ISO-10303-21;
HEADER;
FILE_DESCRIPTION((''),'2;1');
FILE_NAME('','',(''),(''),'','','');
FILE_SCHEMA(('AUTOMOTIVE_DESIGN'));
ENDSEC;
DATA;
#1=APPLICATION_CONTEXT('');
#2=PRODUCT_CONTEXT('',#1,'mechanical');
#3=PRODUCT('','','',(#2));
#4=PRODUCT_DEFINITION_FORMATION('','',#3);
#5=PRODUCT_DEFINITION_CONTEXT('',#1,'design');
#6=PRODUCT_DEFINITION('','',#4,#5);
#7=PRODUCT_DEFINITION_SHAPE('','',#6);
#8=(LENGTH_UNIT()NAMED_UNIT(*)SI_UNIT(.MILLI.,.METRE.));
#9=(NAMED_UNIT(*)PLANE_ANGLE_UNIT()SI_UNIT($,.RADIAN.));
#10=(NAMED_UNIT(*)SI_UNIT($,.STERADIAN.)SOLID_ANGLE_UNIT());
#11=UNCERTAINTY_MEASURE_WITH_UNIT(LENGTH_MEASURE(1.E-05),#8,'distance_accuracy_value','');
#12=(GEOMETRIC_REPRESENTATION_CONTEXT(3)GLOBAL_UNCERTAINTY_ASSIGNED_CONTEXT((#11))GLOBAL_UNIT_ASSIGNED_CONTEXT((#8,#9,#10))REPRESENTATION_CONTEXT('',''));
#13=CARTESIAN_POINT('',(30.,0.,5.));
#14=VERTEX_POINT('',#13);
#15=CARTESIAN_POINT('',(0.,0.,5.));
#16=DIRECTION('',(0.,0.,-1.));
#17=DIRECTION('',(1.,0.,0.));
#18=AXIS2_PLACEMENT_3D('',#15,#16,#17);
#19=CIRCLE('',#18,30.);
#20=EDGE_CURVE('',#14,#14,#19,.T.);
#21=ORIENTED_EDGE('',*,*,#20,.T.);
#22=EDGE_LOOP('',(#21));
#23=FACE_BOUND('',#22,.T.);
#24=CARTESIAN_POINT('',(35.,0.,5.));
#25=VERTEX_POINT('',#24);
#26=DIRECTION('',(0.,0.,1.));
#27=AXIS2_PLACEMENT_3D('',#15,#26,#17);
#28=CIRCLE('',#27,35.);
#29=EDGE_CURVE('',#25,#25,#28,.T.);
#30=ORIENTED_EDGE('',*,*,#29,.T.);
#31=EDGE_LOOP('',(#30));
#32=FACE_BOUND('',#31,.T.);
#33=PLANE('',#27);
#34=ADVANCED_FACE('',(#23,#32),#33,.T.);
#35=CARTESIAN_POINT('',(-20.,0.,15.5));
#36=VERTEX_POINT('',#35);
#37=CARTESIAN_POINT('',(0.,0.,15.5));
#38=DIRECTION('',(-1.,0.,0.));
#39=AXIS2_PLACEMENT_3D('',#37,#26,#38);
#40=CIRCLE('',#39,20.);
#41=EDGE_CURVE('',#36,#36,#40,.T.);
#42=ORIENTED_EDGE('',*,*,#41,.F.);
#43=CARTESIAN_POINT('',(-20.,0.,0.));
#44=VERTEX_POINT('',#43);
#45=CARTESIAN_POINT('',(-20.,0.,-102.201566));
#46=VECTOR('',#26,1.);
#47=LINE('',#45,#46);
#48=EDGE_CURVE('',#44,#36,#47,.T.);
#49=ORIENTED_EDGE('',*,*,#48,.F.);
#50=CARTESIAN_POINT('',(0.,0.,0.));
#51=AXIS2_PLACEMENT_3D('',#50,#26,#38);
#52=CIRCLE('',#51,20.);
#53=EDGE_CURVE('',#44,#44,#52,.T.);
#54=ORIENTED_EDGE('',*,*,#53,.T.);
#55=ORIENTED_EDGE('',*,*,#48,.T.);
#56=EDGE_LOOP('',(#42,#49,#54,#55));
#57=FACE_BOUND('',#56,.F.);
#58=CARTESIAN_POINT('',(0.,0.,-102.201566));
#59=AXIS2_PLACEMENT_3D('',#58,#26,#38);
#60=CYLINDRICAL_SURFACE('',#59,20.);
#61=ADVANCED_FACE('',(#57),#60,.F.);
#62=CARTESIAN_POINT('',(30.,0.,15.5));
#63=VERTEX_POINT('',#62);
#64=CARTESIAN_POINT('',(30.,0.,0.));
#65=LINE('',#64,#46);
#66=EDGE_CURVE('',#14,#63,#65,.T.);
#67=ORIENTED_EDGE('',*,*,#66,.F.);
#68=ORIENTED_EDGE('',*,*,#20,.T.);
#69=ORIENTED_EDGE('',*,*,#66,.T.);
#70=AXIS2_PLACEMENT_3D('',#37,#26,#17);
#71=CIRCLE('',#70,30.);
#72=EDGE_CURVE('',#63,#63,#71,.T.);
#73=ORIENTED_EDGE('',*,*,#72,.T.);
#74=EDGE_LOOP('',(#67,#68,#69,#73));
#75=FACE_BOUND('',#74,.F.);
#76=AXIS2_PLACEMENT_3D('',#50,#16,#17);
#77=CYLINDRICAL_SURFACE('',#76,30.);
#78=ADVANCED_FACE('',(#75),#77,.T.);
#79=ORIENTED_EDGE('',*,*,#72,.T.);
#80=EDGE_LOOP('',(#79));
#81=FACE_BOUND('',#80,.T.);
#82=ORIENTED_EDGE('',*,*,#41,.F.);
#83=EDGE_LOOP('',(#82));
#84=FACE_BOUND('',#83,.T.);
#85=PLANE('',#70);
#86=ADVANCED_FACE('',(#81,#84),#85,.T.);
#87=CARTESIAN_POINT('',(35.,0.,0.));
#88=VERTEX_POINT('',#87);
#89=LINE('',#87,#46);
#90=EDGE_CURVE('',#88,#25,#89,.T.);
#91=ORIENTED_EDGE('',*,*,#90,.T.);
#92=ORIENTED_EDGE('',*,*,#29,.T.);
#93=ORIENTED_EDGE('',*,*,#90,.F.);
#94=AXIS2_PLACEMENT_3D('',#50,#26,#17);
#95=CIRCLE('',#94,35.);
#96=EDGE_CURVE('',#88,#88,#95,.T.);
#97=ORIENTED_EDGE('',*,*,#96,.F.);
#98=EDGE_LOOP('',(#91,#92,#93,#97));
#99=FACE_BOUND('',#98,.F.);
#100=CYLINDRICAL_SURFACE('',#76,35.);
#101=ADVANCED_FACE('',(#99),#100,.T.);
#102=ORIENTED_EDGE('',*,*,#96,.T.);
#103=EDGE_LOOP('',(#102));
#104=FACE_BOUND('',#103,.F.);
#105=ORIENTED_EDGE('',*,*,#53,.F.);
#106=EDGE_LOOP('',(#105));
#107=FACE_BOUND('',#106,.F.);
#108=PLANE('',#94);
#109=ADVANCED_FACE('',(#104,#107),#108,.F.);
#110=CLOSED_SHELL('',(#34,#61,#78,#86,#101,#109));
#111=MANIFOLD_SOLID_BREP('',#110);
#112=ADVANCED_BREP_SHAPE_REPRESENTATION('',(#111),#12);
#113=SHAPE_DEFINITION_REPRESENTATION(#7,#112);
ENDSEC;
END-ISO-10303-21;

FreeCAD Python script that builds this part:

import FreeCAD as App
import Part
import Sketcher

V = App.Vector
Q = App.Units.Quantity

doc = App.newDocument("Part")
params = doc.addObject("Spreadsheet::Sheet", "Params")
for row, (alias, value) in enumerate([
    ("sketch1_diameter", "60 mm"),
    ("pad1_length", "15.5 mm"),
    ("sketch2_diameter", "70 mm"),
    ("pad2_length", "5 mm"),
    ("sketch3_diameter", "40 mm"),
    ("pad3_length", "25.4 mm"),
    ("sketch4_diameter", "40 mm"),
    ("hole_diameter", "40 mm"),
], start=1):
    params.set(f"A{row}", alias)
    params.set(f"B{row}", "=" + value)
    params.setAlias(f"B{row}", alias)

body = doc.addObject("PartDesign::Body", "Body")

# Sketch on XY plane
sketch1 = doc.addObject("Sketcher::SketchObject", "Sketch")
body.addObject(sketch1)
sketch1.AttachmentSupport = (doc.XY_Plane, [""])
sketch1.MapMode = "FlatFace"
sketch1.addGeometry(Part.Circle(V(0, 0, 0), V(0, 0, 1), 30), False)
sketch1.addConstraint(Sketcher.Constraint("Coincident", 0, 3, -1, 1))
sketch1.addConstraint(Sketcher.Constraint("Diameter", 0, Q("60 mm")))
sketch1.setExpression("Constraints[1]", "Params.sketch1_diameter")
pad1 = doc.addObject("PartDesign::Pad", "Pad")
body.addObject(pad1)
pad1.Profile = sketch1
pad1.setExpression("Length", "Params.pad1_length")

# Sketch on XY plane
sketch2 = doc.addObject("Sketcher::SketchObject", "Sketch001")
body.addObject(sketch2)
sketch2.AttachmentSupport = (doc.XY_Plane, [""])
sketch2.MapMode = "FlatFace"
sketch2.addGeometry(Part.Circle(V(0, 0, 0), V(0, 0, 1), 35), False)
sketch2.addConstraint(Sketcher.Constraint("Coincident", 0, 3, -1, 1))
sketch2.addConstraint(Sketcher.Constraint("Diameter", 0, Q("70 mm")))
sketch2.setExpression("Constraints[1]", "Params.sketch2_diameter")
pad2 = doc.addObject("PartDesign::Pad", "Pad001")
body.addObject(pad2)
pad2.Profile = sketch2
pad2.setExpression("Length", "Params.pad2_length")

# Sketch on XY plane
sketch3 = doc.addObject("Sketcher::SketchObject", "Sketch002")
body.addObject(sketch3)
sketch3.AttachmentSupport = (doc.XY_Plane, [""])
sketch3.MapMode = "FlatFace"
sketch3.addGeometry(Part.Circle(V(0, 0, 0), V(0, 0, 1), 20), False)
sketch3.addConstraint(Sketcher.Constraint("Coincident", 0, 3, -1, 1))
sketch3.addConstraint(Sketcher.Constraint("Diameter", 0, Q("40 mm")))
sketch3.setExpression("Constraints[1]", "Params.sketch3_diameter")
pad3 = doc.addObject("PartDesign::Pad", "Pad002")
body.addObject(pad3)
pad3.Profile = sketch3
pad3.setExpression("Length", "Params.pad3_length")

# Sketch on XY plane
sketch4 = doc.addObject("Sketcher::SketchObject", "Sketch003")
body.addObject(sketch4)
sketch4.AttachmentSupport = (doc.XY_Plane, [""])
sketch4.MapMode = "FlatFace"
sketch4.addGeometry(Part.Circle(V(0, 0, 0), V(0, 0, 1), 20), False)
sketch4.addConstraint(Sketcher.Constraint("Coincident", 0, 3, -1, 1))
sketch4.addConstraint(Sketcher.Constraint("Diameter", 0, Q("40 mm")))
sketch4.setExpression("Constraints[1]", "Params.sketch4_diameter")
doc.recompute()
hole = doc.addObject("PartDesign::Hole", "Hole")
body.addObject(hole)
hole.Profile = sketch4
hole.ThreadType = "None"
hole.setExpression("Diameter", "Params.hole_diameter")
hole.DepthType = "ThroughAll"
hole.Reversed = True

doc.recompute()
